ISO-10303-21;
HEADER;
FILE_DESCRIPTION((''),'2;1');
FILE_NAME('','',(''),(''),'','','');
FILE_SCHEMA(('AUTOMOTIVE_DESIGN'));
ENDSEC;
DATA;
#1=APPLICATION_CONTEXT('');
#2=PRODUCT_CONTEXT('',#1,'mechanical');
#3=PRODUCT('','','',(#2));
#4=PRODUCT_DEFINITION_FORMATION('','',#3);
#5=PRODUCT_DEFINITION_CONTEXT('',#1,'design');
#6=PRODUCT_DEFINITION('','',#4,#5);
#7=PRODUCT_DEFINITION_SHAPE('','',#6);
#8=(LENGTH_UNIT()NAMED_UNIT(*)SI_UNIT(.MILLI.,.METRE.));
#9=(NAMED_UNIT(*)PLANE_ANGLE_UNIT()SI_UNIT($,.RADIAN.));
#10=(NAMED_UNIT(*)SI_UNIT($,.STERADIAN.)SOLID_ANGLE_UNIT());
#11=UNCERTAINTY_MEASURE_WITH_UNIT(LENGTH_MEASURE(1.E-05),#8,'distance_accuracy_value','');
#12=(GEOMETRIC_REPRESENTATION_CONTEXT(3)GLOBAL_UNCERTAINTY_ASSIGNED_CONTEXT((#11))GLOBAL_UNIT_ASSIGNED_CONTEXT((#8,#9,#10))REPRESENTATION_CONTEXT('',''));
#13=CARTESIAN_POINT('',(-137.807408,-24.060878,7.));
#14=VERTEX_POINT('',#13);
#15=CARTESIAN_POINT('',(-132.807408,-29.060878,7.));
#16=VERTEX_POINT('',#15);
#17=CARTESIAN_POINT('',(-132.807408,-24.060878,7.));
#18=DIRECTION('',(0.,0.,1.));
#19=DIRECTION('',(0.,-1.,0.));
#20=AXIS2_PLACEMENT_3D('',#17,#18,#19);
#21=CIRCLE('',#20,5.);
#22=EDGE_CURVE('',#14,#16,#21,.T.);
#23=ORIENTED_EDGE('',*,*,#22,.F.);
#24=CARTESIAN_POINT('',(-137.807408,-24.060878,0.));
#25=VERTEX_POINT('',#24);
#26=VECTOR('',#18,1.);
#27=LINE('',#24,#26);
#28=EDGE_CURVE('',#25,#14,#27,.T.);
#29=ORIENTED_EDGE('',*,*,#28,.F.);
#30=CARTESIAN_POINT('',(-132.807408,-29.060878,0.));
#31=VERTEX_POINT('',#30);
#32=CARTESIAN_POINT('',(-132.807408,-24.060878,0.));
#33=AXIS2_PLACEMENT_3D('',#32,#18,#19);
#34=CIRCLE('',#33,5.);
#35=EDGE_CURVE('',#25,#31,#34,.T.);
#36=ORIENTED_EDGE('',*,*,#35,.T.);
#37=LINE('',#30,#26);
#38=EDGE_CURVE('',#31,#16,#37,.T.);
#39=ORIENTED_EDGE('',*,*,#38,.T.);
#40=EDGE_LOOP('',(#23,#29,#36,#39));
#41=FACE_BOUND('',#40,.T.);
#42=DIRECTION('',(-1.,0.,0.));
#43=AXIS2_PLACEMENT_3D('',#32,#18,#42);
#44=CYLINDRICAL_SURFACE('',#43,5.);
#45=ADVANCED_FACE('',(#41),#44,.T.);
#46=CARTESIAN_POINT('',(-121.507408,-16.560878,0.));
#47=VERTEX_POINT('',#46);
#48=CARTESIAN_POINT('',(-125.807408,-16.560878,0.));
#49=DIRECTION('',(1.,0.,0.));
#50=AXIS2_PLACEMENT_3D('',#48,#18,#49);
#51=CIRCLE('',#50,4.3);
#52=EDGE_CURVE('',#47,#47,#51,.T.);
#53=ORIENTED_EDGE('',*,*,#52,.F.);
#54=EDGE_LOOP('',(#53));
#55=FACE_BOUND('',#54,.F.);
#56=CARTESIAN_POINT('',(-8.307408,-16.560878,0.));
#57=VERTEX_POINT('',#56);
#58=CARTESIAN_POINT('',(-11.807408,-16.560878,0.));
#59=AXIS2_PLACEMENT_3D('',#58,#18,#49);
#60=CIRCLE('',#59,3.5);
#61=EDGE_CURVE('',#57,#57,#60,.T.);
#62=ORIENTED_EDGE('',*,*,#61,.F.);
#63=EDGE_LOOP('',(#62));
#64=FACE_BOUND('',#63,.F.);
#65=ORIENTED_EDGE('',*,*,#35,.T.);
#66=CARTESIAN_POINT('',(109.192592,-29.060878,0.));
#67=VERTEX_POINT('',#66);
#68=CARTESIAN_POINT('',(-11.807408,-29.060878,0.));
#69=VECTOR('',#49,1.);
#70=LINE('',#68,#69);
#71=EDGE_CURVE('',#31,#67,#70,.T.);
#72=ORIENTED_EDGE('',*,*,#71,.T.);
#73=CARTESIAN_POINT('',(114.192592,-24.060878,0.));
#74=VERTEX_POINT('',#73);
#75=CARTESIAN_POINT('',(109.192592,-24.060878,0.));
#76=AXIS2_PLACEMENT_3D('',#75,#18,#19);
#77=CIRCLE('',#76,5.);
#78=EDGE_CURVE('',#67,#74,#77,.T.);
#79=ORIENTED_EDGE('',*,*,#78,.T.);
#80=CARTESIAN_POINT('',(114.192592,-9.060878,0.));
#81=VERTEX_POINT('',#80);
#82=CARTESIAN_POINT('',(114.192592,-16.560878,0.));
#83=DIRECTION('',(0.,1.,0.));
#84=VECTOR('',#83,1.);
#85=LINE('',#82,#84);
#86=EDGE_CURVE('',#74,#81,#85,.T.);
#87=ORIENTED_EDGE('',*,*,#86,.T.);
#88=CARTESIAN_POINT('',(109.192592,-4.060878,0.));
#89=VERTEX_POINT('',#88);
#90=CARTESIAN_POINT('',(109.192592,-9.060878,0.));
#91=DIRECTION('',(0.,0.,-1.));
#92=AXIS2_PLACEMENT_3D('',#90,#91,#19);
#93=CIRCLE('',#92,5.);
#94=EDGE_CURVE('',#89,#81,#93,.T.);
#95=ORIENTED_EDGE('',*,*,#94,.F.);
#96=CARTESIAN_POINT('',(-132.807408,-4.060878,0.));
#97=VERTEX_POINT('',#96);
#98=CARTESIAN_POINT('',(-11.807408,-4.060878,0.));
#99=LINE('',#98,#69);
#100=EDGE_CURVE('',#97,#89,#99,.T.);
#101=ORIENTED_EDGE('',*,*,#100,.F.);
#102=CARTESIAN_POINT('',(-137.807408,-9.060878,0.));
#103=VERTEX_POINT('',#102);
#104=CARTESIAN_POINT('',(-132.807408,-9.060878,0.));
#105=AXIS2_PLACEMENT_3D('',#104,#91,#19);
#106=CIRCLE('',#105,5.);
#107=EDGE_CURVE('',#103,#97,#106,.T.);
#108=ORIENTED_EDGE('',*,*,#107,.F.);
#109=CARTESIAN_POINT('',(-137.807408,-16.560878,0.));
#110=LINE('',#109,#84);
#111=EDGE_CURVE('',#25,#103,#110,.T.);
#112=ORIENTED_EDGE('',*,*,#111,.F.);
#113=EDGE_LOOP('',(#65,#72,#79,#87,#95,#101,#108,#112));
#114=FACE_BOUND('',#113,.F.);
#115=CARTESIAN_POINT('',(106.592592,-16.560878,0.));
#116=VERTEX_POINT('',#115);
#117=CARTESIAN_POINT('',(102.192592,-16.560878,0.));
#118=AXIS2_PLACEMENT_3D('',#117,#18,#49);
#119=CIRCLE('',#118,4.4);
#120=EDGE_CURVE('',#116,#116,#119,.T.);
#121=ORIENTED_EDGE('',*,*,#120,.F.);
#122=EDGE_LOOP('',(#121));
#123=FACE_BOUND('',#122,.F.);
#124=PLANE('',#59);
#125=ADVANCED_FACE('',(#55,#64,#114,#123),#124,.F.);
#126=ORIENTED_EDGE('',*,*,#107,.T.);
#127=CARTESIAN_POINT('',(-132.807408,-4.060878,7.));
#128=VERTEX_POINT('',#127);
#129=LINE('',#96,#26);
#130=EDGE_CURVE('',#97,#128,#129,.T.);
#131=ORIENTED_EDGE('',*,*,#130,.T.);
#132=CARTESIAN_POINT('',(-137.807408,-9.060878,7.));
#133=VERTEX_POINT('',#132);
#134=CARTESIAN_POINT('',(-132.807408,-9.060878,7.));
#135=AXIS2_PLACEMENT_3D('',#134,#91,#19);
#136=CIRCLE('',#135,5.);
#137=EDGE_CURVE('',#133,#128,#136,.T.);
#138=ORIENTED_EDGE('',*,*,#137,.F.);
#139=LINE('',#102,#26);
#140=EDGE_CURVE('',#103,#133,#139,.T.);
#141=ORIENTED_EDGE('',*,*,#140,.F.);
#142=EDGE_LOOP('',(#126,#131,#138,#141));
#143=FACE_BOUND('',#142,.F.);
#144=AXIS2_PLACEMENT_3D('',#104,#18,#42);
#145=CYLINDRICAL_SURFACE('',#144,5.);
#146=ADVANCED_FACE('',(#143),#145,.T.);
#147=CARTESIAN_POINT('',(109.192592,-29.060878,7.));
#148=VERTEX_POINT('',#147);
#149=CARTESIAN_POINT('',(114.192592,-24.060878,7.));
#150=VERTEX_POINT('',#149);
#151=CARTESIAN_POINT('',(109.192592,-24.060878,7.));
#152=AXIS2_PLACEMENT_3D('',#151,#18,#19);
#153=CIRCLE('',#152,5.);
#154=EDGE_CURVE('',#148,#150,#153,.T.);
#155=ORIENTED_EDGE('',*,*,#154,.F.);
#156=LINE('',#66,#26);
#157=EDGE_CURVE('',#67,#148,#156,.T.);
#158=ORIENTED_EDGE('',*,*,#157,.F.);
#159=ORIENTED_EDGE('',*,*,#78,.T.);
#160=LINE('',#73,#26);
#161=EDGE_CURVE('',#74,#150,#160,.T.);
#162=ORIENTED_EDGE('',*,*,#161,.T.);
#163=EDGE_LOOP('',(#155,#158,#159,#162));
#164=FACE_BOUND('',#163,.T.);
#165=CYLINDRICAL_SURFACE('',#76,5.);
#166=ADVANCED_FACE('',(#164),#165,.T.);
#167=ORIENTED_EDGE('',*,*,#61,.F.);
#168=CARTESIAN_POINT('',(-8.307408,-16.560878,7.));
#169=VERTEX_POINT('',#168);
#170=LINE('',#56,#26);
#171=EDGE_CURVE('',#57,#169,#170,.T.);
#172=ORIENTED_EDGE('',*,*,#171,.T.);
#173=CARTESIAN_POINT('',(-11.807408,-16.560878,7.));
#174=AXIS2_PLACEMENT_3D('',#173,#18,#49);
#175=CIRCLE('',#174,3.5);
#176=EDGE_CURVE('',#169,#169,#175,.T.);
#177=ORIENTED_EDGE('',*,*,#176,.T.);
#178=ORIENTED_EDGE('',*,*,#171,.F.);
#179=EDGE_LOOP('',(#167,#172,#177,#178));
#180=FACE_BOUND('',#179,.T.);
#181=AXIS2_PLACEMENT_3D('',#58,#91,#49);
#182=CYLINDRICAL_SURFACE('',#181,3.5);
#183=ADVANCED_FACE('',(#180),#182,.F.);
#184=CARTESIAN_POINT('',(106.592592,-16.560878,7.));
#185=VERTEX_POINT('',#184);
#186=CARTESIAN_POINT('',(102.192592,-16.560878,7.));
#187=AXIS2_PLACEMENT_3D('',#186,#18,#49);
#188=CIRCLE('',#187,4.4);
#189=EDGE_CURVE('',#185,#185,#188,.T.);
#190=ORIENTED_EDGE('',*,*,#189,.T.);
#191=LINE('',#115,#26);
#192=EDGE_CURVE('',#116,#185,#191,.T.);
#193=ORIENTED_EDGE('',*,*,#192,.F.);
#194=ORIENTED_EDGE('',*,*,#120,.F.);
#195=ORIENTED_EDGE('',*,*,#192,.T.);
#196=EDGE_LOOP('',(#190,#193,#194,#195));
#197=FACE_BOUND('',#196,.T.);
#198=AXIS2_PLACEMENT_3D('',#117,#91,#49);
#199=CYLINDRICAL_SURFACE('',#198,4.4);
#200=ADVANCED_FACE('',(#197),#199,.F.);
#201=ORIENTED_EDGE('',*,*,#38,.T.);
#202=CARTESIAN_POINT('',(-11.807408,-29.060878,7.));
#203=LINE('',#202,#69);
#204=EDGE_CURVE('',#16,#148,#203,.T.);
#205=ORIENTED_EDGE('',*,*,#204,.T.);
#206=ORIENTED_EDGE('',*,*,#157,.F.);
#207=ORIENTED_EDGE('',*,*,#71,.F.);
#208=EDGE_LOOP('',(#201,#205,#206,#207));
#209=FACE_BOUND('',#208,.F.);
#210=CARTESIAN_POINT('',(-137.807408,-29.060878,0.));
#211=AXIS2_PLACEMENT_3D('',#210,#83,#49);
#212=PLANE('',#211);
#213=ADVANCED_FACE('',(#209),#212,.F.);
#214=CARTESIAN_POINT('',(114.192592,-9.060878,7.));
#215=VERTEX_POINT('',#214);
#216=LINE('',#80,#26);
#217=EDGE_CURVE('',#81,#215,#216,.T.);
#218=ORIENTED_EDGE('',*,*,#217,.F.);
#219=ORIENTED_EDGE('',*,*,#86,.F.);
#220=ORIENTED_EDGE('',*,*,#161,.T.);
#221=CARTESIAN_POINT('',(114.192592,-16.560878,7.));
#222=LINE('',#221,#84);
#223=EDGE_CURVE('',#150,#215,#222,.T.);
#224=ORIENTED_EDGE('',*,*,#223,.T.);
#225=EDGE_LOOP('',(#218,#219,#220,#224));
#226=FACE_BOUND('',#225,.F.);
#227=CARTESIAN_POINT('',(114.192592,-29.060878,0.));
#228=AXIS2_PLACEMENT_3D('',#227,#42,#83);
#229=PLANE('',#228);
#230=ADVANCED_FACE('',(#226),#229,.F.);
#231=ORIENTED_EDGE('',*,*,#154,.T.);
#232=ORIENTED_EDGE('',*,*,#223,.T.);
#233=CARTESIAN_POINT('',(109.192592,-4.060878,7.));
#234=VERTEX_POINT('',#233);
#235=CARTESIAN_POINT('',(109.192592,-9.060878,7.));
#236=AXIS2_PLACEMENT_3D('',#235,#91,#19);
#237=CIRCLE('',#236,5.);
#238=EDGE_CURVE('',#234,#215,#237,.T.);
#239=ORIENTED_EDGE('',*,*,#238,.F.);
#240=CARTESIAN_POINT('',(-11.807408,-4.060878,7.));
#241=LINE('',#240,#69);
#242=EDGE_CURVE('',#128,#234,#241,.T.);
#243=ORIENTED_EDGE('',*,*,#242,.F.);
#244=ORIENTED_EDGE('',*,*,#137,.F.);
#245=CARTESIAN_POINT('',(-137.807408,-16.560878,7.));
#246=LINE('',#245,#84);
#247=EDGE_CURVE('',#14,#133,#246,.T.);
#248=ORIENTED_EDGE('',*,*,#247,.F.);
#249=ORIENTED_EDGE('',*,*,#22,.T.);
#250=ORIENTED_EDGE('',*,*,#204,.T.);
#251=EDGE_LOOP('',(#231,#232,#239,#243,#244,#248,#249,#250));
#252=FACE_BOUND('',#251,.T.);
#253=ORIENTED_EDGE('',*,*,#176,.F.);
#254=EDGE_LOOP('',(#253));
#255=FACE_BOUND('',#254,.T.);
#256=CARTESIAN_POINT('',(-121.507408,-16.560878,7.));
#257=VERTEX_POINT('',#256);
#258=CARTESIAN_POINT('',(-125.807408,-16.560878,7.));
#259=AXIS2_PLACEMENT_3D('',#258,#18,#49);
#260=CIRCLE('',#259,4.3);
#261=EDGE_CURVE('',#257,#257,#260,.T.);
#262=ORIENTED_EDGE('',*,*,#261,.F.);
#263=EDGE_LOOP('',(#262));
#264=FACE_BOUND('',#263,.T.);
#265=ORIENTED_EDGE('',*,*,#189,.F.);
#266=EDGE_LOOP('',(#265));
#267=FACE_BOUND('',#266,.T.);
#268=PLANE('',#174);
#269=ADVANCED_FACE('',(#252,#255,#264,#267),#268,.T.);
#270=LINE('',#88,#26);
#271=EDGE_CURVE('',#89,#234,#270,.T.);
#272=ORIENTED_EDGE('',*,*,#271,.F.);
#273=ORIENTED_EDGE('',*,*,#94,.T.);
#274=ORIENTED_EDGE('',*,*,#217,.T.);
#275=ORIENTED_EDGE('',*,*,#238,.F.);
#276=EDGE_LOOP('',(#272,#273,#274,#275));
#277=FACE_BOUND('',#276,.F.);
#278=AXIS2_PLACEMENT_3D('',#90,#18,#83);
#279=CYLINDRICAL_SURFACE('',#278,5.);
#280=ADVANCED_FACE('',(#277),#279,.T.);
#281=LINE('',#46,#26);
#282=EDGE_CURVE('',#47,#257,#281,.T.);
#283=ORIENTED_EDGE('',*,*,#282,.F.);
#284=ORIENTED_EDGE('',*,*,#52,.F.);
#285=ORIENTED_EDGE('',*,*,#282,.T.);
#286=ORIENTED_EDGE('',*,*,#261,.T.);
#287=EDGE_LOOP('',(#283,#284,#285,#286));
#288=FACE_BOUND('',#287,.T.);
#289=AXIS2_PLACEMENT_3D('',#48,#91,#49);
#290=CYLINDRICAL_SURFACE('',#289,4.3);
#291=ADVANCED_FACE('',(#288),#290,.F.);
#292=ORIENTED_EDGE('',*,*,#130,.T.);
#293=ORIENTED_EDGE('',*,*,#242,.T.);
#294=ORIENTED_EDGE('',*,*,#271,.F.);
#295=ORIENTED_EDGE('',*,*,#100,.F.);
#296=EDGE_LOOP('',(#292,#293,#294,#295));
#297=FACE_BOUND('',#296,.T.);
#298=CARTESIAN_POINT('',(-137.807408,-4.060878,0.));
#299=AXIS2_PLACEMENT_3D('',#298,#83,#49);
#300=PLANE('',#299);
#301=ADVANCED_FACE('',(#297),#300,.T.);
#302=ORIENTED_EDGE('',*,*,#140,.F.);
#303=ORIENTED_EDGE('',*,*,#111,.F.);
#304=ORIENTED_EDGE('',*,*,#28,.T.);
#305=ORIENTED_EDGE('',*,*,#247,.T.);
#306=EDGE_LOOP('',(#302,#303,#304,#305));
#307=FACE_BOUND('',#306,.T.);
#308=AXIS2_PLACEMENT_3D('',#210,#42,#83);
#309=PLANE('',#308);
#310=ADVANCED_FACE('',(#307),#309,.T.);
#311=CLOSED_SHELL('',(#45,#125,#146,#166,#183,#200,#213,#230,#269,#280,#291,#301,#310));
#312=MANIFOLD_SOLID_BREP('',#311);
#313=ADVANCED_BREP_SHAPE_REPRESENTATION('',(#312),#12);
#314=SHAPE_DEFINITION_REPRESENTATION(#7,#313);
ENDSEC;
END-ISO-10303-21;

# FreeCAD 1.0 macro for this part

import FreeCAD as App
import Part
import Sketcher

V = App.Vector


def edges_at(feature, points):
    """Names of the edges that pass closest to the given points."""
    edges = feature.Shape.Edges
    near = lambda p: min(range(len(edges)), key=lambda i: edges[i].distToShape(Part.Vertex(*p))[0])
    return sorted({f"Edge{near(p) + 1}" for p in points})

doc = App.newDocument("Part")
body = doc.addObject("PartDesign::Body", "Body")

sketch1 = body.newObject("Sketcher::SketchObject", "Sketch")
sketch1.AttachmentSupport = (doc.getObject("XY_Plane"), [""])
sketch1.MapMode = "FlatFace"
sketch1.addGeometry(Part.LineSegment(V(-137.8, -4.1, 0), V(-137.8, -29.1, 0)), False)
sketch1.addGeometry(Part.LineSegment(V(-137.8, -29.1, 0), V(114.2, -29.1, 0)), False)
sketch1.addGeometry(Part.LineSegment(V(114.2, -29.1, 0), V(114.2, -4.1, 0)), False)
sketch1.addGeometry(Part.LineSegment(V(114.2, -4.1, 0), V(-137.8, -4.1, 0)), False)
sketch1.addGeometry(Part.Circle(V(-125.8, -16.6, 0), V(0, 0, 1), 4.3), False)
sketch1.addGeometry(Part.Circle(V(-11.8, -16.6, 0), V(0, 0, 1), 3.5), False)
sketch1.addGeometry(Part.Circle(V(102.2, -16.6, 0), V(0, 0, 1), 4.4), False)
sketch1.addConstraint(Sketcher.Constraint("Coincident", 0, 2, 1, 1))
sketch1.addConstraint(Sketcher.Constraint("Coincident", 1, 2, 2, 1))
sketch1.addConstraint(Sketcher.Constraint("Coincident", 2, 2, 3, 1))
sketch1.addConstraint(Sketcher.Constraint("Coincident", 3, 2, 0, 1))
sketch1.addConstraint(Sketcher.Constraint("Vertical", 0))
sketch1.addConstraint(Sketcher.Constraint("Horizontal", 1))
sketch1.addConstraint(Sketcher.Constraint("Vertical", 2))
sketch1.addConstraint(Sketcher.Constraint("Horizontal", 3))
sketch1.addConstraint(Sketcher.Constraint("Horizontal", 4, 3, 5, 3))
sketch1.addConstraint(Sketcher.Constraint("Horizontal", 5, 3, 6, 3))
sketch1.addConstraint(Sketcher.Constraint("Diameter", 5, 7.0))
sketch1.addConstraint(Sketcher.Constraint("Diameter", 4, 8.6))
sketch1.addConstraint(Sketcher.Constraint("Diameter", 6, 8.8))
sketch1.addConstraint(Sketcher.Constraint("DistanceX", 1, 1, 1, 2, 252.0))
sketch1.addConstraint(Sketcher.Constraint("DistanceY", 0, 2, 0, 1, 25.0))
sketch1.addConstraint(Sketcher.Constraint("DistanceX", 4, 3, 5, 3, 114.0))
sketch1.addConstraint(Sketcher.Constraint("DistanceX", 5, 3, 6, 3, 114.0))
sketch1.addConstraint(Sketcher.Constraint("DistanceX", 0, 2, 4, 3, 12.0))
sketch1.addConstraint(Sketcher.Constraint("DistanceY", 0, 2, 4, 3, 12.5))
sketch1.addConstraint(Sketcher.Constraint("DistanceX", 0, 2, -1, 1, 137.807408))
sketch1.addConstraint(Sketcher.Constraint("DistanceY", 4, 3, -1, 1, 16.560878))
pad1 = body.newObject("PartDesign::Pad", "Pad")
pad1.Profile = sketch1
pad1.Length = 7
doc.recompute()

fillet = body.newObject("PartDesign::Fillet", "Fillet")
fillet.Base = (pad1, edges_at(pad1, [
    (114.193, -29.061, 3.5),
    (114.193, -4.061, 3.5),
    (-137.807, -29.061, 3.5),
    (-137.807, -4.061, 3.5),
]))
fillet.Radius = 5

doc.recompute()
